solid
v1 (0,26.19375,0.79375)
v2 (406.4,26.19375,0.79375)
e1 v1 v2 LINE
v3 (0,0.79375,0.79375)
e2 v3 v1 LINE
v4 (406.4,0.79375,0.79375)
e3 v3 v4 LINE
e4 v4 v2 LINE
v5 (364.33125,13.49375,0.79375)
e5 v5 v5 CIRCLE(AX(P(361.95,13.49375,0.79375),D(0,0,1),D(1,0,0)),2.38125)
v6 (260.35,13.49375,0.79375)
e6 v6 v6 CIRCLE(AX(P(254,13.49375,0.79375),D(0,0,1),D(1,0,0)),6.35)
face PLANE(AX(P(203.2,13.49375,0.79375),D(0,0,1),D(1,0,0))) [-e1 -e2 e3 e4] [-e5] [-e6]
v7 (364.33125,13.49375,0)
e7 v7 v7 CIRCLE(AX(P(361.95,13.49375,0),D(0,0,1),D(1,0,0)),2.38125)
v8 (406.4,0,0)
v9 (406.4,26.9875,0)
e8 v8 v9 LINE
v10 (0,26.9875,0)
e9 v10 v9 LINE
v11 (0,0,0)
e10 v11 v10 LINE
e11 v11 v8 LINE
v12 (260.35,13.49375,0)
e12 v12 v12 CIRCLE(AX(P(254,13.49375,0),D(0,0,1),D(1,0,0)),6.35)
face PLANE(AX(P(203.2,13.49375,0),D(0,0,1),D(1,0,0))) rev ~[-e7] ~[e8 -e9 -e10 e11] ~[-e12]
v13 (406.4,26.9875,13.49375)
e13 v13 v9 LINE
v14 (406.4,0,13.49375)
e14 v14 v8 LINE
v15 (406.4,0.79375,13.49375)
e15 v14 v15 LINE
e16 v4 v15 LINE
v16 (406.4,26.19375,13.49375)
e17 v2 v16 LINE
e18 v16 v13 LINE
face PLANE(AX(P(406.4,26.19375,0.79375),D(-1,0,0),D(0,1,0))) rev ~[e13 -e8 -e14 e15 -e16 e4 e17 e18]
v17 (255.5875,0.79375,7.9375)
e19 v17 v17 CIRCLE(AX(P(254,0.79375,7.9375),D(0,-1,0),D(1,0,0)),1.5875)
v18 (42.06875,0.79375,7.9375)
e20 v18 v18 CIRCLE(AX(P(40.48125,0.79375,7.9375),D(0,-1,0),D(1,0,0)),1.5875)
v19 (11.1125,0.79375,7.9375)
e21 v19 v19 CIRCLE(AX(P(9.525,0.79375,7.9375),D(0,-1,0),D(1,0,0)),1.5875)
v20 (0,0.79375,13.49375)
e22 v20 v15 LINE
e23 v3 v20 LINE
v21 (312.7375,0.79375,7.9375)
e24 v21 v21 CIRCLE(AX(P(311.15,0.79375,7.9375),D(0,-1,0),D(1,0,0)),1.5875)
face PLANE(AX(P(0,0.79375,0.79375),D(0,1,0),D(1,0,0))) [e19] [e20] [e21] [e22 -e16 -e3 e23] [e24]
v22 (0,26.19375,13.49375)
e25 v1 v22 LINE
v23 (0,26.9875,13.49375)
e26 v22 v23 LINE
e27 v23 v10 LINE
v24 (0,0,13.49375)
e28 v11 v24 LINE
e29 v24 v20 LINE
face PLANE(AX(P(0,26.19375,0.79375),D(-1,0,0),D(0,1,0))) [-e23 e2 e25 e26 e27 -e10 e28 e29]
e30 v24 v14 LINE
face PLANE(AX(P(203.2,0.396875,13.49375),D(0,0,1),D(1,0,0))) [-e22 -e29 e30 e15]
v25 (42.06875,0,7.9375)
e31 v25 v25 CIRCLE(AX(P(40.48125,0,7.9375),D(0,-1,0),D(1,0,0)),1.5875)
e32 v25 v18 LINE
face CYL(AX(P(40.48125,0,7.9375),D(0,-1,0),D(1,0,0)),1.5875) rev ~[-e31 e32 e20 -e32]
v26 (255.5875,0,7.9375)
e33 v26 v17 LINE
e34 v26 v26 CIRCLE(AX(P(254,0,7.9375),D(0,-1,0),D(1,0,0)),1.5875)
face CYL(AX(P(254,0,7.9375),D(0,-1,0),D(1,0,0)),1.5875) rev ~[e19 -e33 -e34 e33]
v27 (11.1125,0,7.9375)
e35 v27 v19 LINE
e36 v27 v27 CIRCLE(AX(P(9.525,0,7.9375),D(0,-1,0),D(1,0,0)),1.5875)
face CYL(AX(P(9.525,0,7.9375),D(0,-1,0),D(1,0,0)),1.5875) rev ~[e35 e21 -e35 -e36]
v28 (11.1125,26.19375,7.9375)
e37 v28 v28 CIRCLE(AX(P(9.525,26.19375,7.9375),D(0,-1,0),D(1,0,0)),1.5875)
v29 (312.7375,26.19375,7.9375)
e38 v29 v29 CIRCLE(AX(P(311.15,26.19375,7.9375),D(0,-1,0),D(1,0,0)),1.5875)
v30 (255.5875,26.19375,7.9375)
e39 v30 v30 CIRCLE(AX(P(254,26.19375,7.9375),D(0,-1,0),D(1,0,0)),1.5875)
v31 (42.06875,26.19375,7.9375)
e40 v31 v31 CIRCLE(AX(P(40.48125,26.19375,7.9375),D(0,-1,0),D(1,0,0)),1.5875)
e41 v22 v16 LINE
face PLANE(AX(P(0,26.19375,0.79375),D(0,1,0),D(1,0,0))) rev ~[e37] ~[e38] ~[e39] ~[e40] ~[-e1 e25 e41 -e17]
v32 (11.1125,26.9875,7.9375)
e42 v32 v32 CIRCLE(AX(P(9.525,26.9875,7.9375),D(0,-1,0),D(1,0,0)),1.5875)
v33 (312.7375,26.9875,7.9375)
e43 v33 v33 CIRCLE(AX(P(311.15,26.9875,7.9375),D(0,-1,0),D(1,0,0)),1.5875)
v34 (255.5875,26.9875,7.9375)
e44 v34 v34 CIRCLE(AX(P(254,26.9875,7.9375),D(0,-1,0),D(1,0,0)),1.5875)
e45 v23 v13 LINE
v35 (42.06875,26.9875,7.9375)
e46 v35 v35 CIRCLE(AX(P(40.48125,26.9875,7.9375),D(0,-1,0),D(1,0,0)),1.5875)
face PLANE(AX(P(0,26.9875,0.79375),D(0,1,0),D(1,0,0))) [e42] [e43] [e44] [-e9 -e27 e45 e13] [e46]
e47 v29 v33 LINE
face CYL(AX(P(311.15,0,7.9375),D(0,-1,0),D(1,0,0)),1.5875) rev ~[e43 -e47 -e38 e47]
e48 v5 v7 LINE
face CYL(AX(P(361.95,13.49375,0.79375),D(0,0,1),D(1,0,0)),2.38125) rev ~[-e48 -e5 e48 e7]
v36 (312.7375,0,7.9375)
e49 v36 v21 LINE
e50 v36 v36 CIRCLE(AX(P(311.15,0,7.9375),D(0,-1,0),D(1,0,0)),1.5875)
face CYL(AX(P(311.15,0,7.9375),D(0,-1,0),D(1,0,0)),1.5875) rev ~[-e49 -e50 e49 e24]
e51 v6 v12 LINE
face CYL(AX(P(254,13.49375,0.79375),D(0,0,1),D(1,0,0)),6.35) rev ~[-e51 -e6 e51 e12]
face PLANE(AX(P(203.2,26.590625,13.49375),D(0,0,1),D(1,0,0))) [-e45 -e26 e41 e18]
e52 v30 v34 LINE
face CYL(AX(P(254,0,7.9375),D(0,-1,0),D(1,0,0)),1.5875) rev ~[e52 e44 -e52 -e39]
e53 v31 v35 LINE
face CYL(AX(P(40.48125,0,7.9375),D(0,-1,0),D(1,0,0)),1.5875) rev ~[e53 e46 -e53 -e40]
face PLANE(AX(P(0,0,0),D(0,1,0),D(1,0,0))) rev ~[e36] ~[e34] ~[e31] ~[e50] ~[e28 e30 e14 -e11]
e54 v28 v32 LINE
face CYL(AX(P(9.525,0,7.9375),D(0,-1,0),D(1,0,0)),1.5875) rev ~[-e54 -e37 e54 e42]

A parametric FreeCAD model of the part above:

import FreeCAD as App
import Part
import Sketcher
Q = App.Units.Quantity

doc = App.newDocument("Part")
body = doc.addObject("PartDesign::Body", "Body")

# Sketch on XY plane
sketch1 = body.newObject("Sketcher::SketchObject", "Sketch")
sketch1.AttachmentSupport = (doc.getObject("XY_Plane"), [""])
sketch1.MapMode = "FlatFace"
sketch1.addGeometry(Part.LineSegment(App.Vector(0, 26.9875, 0), App.Vector(0, 0, 0)), False)
sketch1.addGeometry(Part.LineSegment(App.Vector(0, 0, 0), App.Vector(406.4, 0, 0)), False)
sketch1.addGeometry(Part.LineSegment(App.Vector(406.4, 0, 0), App.Vector(406.4, 26.9875, 0)), False)
sketch1.addGeometry(Part.LineSegment(App.Vector(406.4, 26.9875, 0), App.Vector(0, 26.9875, 0)), False)
sketch1.addConstraint(Sketcher.Constraint("Coincident", 0, 2, 1, 1))
sketch1.addConstraint(Sketcher.Constraint("Coincident", 1, 2, 2, 1))
sketch1.addConstraint(Sketcher.Constraint("Coincident", 2, 2, 3, 1))
sketch1.addConstraint(Sketcher.Constraint("Coincident", 3, 2, 0, 1))
sketch1.addConstraint(Sketcher.Constraint("Vertical", 0))
sketch1.addConstraint(Sketcher.Constraint("Horizontal", 1))
sketch1.addConstraint(Sketcher.Constraint("Vertical", 2))
sketch1.addConstraint(Sketcher.Constraint("Horizontal", 3))
sketch1.addConstraint(Sketcher.Constraint("Coincident", 0, 2, -1, 1))
sketch1.addConstraint(Sketcher.Constraint("DistanceX", 1, 1, 1, 2, Q("16 in")))
sketch1.addConstraint(Sketcher.Constraint("DistanceY", 0, 2, 0, 1, Q("1.0625 in")))
pad1 = body.newObject("PartDesign::Pad", "Pad")
pad1.Profile = sketch1
pad1.Length = Q("0.03125 in")

# Sketch on XY plane
sketch2 = body.newObject("Sketcher::SketchObject", "Sketch001")
sketch2.AttachmentSupport = (doc.getObject("XY_Plane"), [""])
sketch2.MapMode = "FlatFace"
sketch2.AttachmentOffset = App.Placement(App.Vector(0, 0, 0.03125 * 25.4), App.Rotation())
sketch2.addGeometry(Part.LineSegment(App.Vector(0, 26.9875, 0), App.Vector(0, 26.19375, 0)), False)
sketch2.addGeometry(Part.LineSegment(App.Vector(0, 26.19375, 0), App.Vector(406.4, 26.19375, 0)), False)
sketch2.addGeometry(Part.LineSegment(App.Vector(406.4, 26.19375, 0), App.Vector(406.4, 26.9875, 0)), False)
sketch2.addGeometry(Part.LineSegment(App.Vector(406.4, 26.9875, 0), App.Vector(0, 26.9875, 0)), False)
sketch2.addGeometry(Part.LineSegment(App.Vector(0, 0.79375, 0), App.Vector(0, 0, 0)), False)
sketch2.addGeometry(Part.LineSegment(App.Vector(0, 0, 0), App.Vector(406.4, 0, 0)), False)
sketch2.addGeometry(Part.LineSegment(App.Vector(406.4, 0, 0), App.Vector(406.4, 0.79375, 0)), False)
sketch2.addGeometry(Part.LineSegment(App.Vector(406.4, 0.79375, 0), App.Vector(0, 0.79375, 0)), False)
sketch2.addConstraint(Sketcher.Constraint("Coincident", 0, 2, 1, 1))
sketch2.addConstraint(Sketcher.Constraint("Coincident", 1, 2, 2, 1))
sketch2.addConstraint(Sketcher.Constraint("Coincident", 2, 2, 3, 1))
sketch2.addConstraint(Sketcher.Constraint("Coincident", 3, 2, 0, 1))
sketch2.addConstraint(Sketcher.Constraint("Coincident", 4, 2, 5, 1))
sketch2.addConstraint(Sketcher.Constraint("Coincident", 5, 2, 6, 1))
sketch2.addConstraint(Sketcher.Constraint("Coincident", 6, 2, 7, 1))
sketch2.addConstraint(Sketcher.Constraint("Coincident", 7, 2, 4, 1))
sketch2.addConstraint(Sketcher.Constraint("Vertical", 0))
sketch2.addConstraint(Sketcher.Constraint("Horizontal", 1))
sketch2.addConstraint(Sketcher.Constraint("Vertical", 2))
sketch2.addConstraint(Sketcher.Constraint("Horizontal", 3))
sketch2.addConstraint(Sketcher.Constraint("Vertical", 4))
sketch2.addConstraint(Sketcher.Constraint("Horizontal", 5))
sketch2.addConstraint(Sketcher.Constraint("Vertical", 6))
sketch2.addConstraint(Sketcher.Constraint("Horizontal", 7))
sketch2.addConstraint(Sketcher.Constraint("Coincident", 4, 2, -1, 1))
sketch2.addConstraint(Sketcher.Constraint("PointOnObject", 0, 2, -2))
sketch2.addConstraint(Sketcher.Constraint("Vertical", 2, 2, 5, 2))
sketch2.addConstraint(Sketcher.Constraint("Equal", 2, 4))
sketch2.addConstraint(Sketcher.Constraint("DistanceX", 1, 1, 1, 2, Q("16 in")))
sketch2.addConstraint(Sketcher.Constraint("DistanceY", 6, 2, 1, 2, Q("1 in")))
sketch2.addConstraint(Sketcher.Constraint("DistanceY", 0, 2, 0, 1, Q("0.03125 in")))
pad2 = body.newObject("PartDesign::Pad", "Pad001")
pad2.Profile = sketch2
pad2.Length = Q("0.5 in")

# Sketch on XZ plane
sketch3 = body.newObject("Sketcher::SketchObject", "Sketch002")
sketch3.AttachmentSupport = (doc.getObject("XZ_Plane"), [""])
sketch3.MapMode = "FlatFace"
sketch3.addGeometry(Part.Circle(App.Vector(311.15, 7.9375, 0), App.Vector(0, 0, 1), 1.5875), False)
sketch3.addGeometry(Part.Circle(App.Vector(254, 7.9375, 0), App.Vector(0, 0, 1), 1.5875), False)
sketch3.addGeometry(Part.Circle(App.Vector(40.48125, 7.9375, 0), App.Vector(0, 0, 1), 1.5875), False)
sketch3.addGeometry(Part.Circle(App.Vector(9.525, 7.9375, 0), App.Vector(0, 0, 1), 1.5875), False)
sketch3.addConstraint(Sketcher.Constraint("Equal", 0, 1))
sketch3.addConstraint(Sketcher.Constraint("Equal", 1, 2))
sketch3.addConstraint(Sketcher.Constraint("Equal", 2, 3))
sketch3.addConstraint(Sketcher.Constraint("Horizontal", 0, 3, 1, 3))
sketch3.addConstraint(Sketcher.Constraint("Horizontal", 1, 3, 2, 3))
sketch3.addConstraint(Sketcher.Constraint("Horizontal", 2, 3, 3, 3))
sketch3.addConstraint(Sketcher.Constraint("Diameter", 0, Q("0.125 in")))
sketch3.addConstraint(Sketcher.Constraint("DistanceX", -1, 1, 1, 3, Q("10 in")))
sketch3.addConstraint(Sketcher.Constraint("DistanceX", -1, 1, 0, 3, Q("12.25 in")))
sketch3.addConstraint(Sketcher.Constraint("DistanceY", -1, 1, 0, 3, Q("0.3125 in")))
sketch3.addConstraint(Sketcher.Constraint("DistanceX", -1, 1, 2, 3, Q("1.59375 in")))
sketch3.addConstraint(Sketcher.Constraint("DistanceX", -1, 1, 3, 3, Q("0.375 in")))
pocket1 = body.newObject("PartDesign::Pocket", "Pocket")
pocket1.Profile = sketch3
pocket1.Type = "ThroughAll"

# Sketch on XY plane
sketch4 = body.newObject("Sketcher::SketchObject", "Sketch003")
sketch4.AttachmentSupport = (doc.getObject("XY_Plane"), [""])
sketch4.MapMode = "FlatFace"
sketch4.AttachmentOffset = App.Placement(App.Vector(0, 0, 0.03125 * 25.4), App.Rotation())
sketch4.addGeometry(Part.Circle(App.Vector(254, 13.49375, 0), App.Vector(0, 0, 1), 6.35), False)
sketch4.addGeometry(Part.Circle(App.Vector(361.95, 13.49375, 0), App.Vector(0, 0, 1), 2.38125), False)
sketch4.addConstraint(Sketcher.Constraint("Horizontal", 0, 3, 1, 3))
sketch4.addConstraint(Sketcher.Constraint("Diameter", 0, Q("0.5 in")))
sketch4.addConstraint(Sketcher.Constraint("Diameter", 1, Q("0.1875 in")))
sketch4.addConstraint(Sketcher.Constraint("DistanceX", -1, 1, 0, 3, Q("10 in")))
sketch4.addConstraint(Sketcher.Constraint("DistanceX", -1, 1, 1, 3, Q("14.25 in")))
sketch4.addConstraint(Sketcher.Constraint("DistanceY", -1, 1, 0, 3, Q("0.53125 in")))
pocket2 = body.newObject("PartDesign::Pocket", "Pocket001")
pocket2.Profile = sketch4
pocket2.Length = Q("1 in")

doc.recompute()
